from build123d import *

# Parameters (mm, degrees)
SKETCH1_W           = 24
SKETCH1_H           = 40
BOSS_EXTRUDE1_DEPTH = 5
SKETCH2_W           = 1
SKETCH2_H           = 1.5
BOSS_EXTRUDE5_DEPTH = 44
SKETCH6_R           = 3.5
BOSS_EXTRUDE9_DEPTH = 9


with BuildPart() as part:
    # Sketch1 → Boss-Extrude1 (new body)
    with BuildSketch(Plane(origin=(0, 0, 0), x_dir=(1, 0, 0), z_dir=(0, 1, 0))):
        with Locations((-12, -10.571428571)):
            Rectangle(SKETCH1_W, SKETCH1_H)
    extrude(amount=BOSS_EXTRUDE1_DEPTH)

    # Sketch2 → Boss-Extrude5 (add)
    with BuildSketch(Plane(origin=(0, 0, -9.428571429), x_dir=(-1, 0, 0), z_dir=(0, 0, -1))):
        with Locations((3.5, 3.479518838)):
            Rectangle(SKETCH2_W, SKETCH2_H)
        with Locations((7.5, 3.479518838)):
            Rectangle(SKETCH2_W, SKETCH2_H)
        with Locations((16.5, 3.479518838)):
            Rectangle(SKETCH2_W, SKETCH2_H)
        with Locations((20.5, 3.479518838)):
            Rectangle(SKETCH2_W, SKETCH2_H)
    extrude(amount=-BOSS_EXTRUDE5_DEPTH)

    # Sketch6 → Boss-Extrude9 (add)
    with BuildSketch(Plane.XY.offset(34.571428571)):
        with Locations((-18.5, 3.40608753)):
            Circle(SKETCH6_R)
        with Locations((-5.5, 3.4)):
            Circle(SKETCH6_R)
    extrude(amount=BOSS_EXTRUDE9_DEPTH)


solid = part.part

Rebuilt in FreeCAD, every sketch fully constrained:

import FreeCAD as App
import Part
import Sketcher
Q = App.Units.Quantity

doc = App.newDocument("Part")
params = doc.addObject("Spreadsheet::Sheet", "Params")
for row, (alias, value) in enumerate([
    ("sketch1_width", "24 mm"),
    ("sketch1_height", "40 mm"),
    ("pad1_length", "5 mm"),
    ("sketch2_width", "1 mm"),
    ("sketch2_height", "1.5 mm"),
    ("pad2_length", "44 mm"),
    ("sketch3_diameter", "7 mm"),
    ("pad3_length", "9 mm"),
], start=1):
    params.set(f"A{row}", alias)
    params.set(f"B{row}", "=" + value)
    params.setAlias(f"B{row}", alias)

body = doc.addObject("PartDesign::Body", "Body")

sketch1 = body.newObject("Sketcher::SketchObject", "Sketch")
sketch1.AttachmentSupport = (doc.getObject("XZ_Plane"), [""])
sketch1.MapMode = "FlatFace"
sketch1.addGeometry(Part.LineSegment(App.Vector(-24, -9.428571, 0), App.Vector(-24, 30.571429, 0)), False)
sketch1.addGeometry(Part.LineSegment(App.Vector(-24, 30.571429, 0), App.Vector(0, 30.571429, 0)), False)
sketch1.addGeometry(Part.LineSegment(App.Vector(0, 30.571429, 0), App.Vector(0, -9.428571, 0)), False)
sketch1.addGeometry(Part.LineSegment(App.Vector(0, -9.428571, 0), App.Vector(-24, -9.428571, 0)), False)
sketch1.addConstraint(Sketcher.Constraint("Coincident", 0, 2, 1, 1))
sketch1.addConstraint(Sketcher.Constraint("Coincident", 1, 2, 2, 1))
sketch1.addConstraint(Sketcher.Constraint("Coincident", 2, 2, 3, 1))
sketch1.addConstraint(Sketcher.Constraint("Coincident", 3, 2, 0, 1))
sketch1.addConstraint(Sketcher.Constraint("Vertical", 0))
sketch1.addConstraint(Sketcher.Constraint("Horizontal", 1))
sketch1.addConstraint(Sketcher.Constraint("Vertical", 2))
sketch1.addConstraint(Sketcher.Constraint("Horizontal", 3))
sketch1.addConstraint(Sketcher.Constraint("PointOnObject", 1, 2, -2))
sketch1.addConstraint(Sketcher.Constraint("DistanceX", 1, 1, 1, 2, Q("24 mm")))
sketch1.addConstraint(Sketcher.Constraint("DistanceY", 0, 1, 0, 2, Q("40 mm")))
sketch1.addConstraint(Sketcher.Constraint("DistanceY", -1, 1, 0, 2, Q("30.571429 mm")))
sketch1.setExpression("Constraints[9]", "Params.sketch1_width")
sketch1.setExpression("Constraints[10]", "Params.sketch1_height")
pad1 = body.newObject("PartDesign::Pad", "Pad")
pad1.Profile = sketch1
pad1.setExpression("Length", "Params.pad1_length")
pad1.Reversed = True

sketch2 = body.newObject("Sketcher::SketchObject", "Sketch001")
sketch2.AttachmentSupport = (doc.getObject("XY_Plane"), [""])
sketch2.MapMode = "FlatFace"
sketch2.AttachmentOffset = App.Placement(App.Vector(0, 0, -9.428571), App.Rotation())
sketch2.addGeometry(Part.LineSegment(App.Vector(-3, 4.229519, 0), App.Vector(-3, 2.729519, 0)), False)
sketch2.addGeometry(Part.LineSegment(App.Vector(-3, 2.729519, 0), App.Vector(-4, 2.729519, 0)), False)
sketch2.addGeometry(Part.LineSegment(App.Vector(-4, 2.729519, 0), App.Vector(-4, 4.229519, 0)), False)
sketch2.addGeometry(Part.LineSegment(App.Vector(-4, 4.229519, 0), App.Vector(-3, 4.229519, 0)), False)
sketch2.addGeometry(Part.LineSegment(App.Vector(-7, 4.229519, 0), App.Vector(-7, 2.729519, 0)), False)
sketch2.addGeometry(Part.LineSegment(App.Vector(-7, 2.729519, 0), App.Vector(-8, 2.729519, 0)), False)
sketch2.addGeometry(Part.LineSegment(App.Vector(-8, 2.729519, 0), App.Vector(-8, 4.229519, 0)), False)
sketch2.addGeometry(Part.LineSegment(App.Vector(-8, 4.229519, 0), App.Vector(-7, 4.229519, 0)), False)
sketch2.addGeometry(Part.LineSegment(App.Vector(-16, 4.229519, 0), App.Vector(-16, 2.729519, 0)), False)
sketch2.addGeometry(Part.LineSegment(App.Vector(-16, 2.729519, 0), App.Vector(-17, 2.729519, 0)), False)
sketch2.addGeometry(Part.LineSegment(App.Vector(-17, 2.729519, 0), App.Vector(-17, 4.229519, 0)), False)
sketch2.addGeometry(Part.LineSegment(App.Vector(-17, 4.229519, 0), App.Vector(-16, 4.229519, 0)), False)
sketch2.addGeometry(Part.LineSegment(App.Vector(-20, 4.229519, 0), App.Vector(-20, 2.729519, 0)), False)
sketch2.addGeometry(Part.LineSegment(App.Vector(-20, 2.729519, 0), App.Vector(-21, 2.729519, 0)), False)
sketch2.addGeometry(Part.LineSegment(App.Vector(-21, 2.729519, 0), App.Vector(-21, 4.229519, 0)), False)
sketch2.addGeometry(Part.LineSegment(App.Vector(-21, 4.229519, 0), App.Vector(-20, 4.229519, 0)), False)
sketch2.addConstraint(Sketcher.Constraint("Coincident", 0, 2, 1, 1))
sketch2.addConstraint(Sketcher.Constraint("Coincident", 1, 2, 2, 1))
sketch2.addConstraint(Sketcher.Constraint("Coincident", 2, 2, 3, 1))
sketch2.addConstraint(Sketcher.Constraint("Coincident", 3, 2, 0, 1))
sketch2.addConstraint(Sketcher.Constraint("Coincident", 4, 2, 5, 1))
sketch2.addConstraint(Sketcher.Constraint("Coincident", 5, 2, 6, 1))
sketch2.addConstraint(Sketcher.Constraint("Coincident", 6, 2, 7, 1))
sketch2.addConstraint(Sketcher.Constraint("Coincident", 7, 2, 4, 1))
sketch2.addConstraint(Sketcher.Constraint("Coincident", 8, 2, 9, 1))
sketch2.addConstraint(Sketcher.Constraint("Coincident", 9, 2, 10, 1))
sketch2.addConstraint(Sketcher.Constraint("Coincident", 10, 2, 11, 1))
sketch2.addConstraint(Sketcher.Constraint("Coincident", 11, 2, 8, 1))
sketch2.addConstraint(Sketcher.Constraint("Coincident", 12, 2, 13, 1))
sketch2.addConstraint(Sketcher.Constraint("Coincident", 13, 2, 14, 1))
sketch2.addConstraint(Sketcher.Constraint("Coincident", 14, 2, 15, 1))
sketch2.addConstraint(Sketcher.Constraint("Coincident", 15, 2, 12, 1))
sketch2.addConstraint(Sketcher.Constraint("Vertical", 0))
sketch2.addConstraint(Sketcher.Constraint("Horizontal", 1))
sketch2.addConstraint(Sketcher.Constraint("Vertical", 2))
sketch2.addConstraint(Sketcher.Constraint("Horizontal", 3))
sketch2.addConstraint(Sketcher.Constraint("Vertical", 4))
sketch2.addConstraint(Sketcher.Constraint("Horizontal", 5))
sketch2.addConstraint(Sketcher.Constraint("Vertical", 6))
sketch2.addConstraint(Sketcher.Constraint("Horizontal", 7))
sketch2.addConstraint(Sketcher.Constraint("Vertical", 8))
sketch2.addConstraint(Sketcher.Constraint("Horizontal", 9))
sketch2.addConstraint(Sketcher.Constraint("Vertical", 10))
sketch2.addConstraint(Sketcher.Constraint("Horizontal", 11))
sketch2.addConstraint(Sketcher.Constraint("Vertical", 12))
sketch2.addConstraint(Sketcher.Constraint("Horizontal", 13))
sketch2.addConstraint(Sketcher.Constraint("Vertical", 14))
sketch2.addConstraint(Sketcher.Constraint("Horizontal", 15))
sketch2.addConstraint(Sketcher.Constraint("Horizontal", 1, 2, 4, 2))
sketch2.addConstraint(Sketcher.Constraint("Horizontal", 3, 2, 6, 2))
sketch2.addConstraint(Sketcher.Constraint("Horizontal", 5, 2, 8, 2))
sketch2.addConstraint(Sketcher.Constraint("Horizontal", 7, 2, 10, 2))
sketch2.addConstraint(Sketcher.Constraint("Horizontal", 9, 2, 12, 2))
sketch2.addConstraint(Sketcher.Constraint("Horizontal", 11, 2, 14, 2))
sketch2.addConstraint(Sketcher.Constraint("Equal", 3, 5))
sketch2.addConstraint(Sketcher.Constraint("Equal", 7, 9))
sketch2.addConstraint(Sketcher.Constraint("Equal", 11, 13))
sketch2.addConstraint(Sketcher.Constraint("DistanceX", 1, 2, 1, 1, Q("1 mm")))
sketch2.addConstraint(Sketcher.Constraint("DistanceY", 0, 2, 0, 1, Q("1.5 mm")))
sketch2.addConstraint(Sketcher.Constraint("DistanceX", 0, 2, -1, 1, Q("3 mm")))
sketch2.addConstraint(Sketcher.Constraint("DistanceX", 4, 2, -1, 1, Q("7 mm")))
sketch2.addConstraint(Sketcher.Constraint("DistanceX", 8, 2, -1, 1, Q("16 mm")))
sketch2.addConstraint(Sketcher.Constraint("DistanceX", 12, 2, -1, 1, Q("20 mm")))
sketch2.addConstraint(Sketcher.Constraint("DistanceY", -1, 1, 0, 2, Q("2.729519 mm")))
sketch2.setExpression("Constraints[41]", "Params.sketch2_width")
sketch2.setExpression("Constraints[42]", "Params.sketch2_height")
pad2 = body.newObject("PartDesign::Pad", "Pad001")
pad2.Profile = sketch2
pad2.setExpression("Length", "Params.pad2_length")

sketch3 = body.newObject("Sketcher::SketchObject", "Sketch002")
sketch3.AttachmentSupport = (doc.getObject("XY_Plane"), [""])
sketch3.MapMode = "FlatFace"
sketch3.AttachmentOffset = App.Placement(App.Vector(0, 0, 34.571429), App.Rotation())
sketch3.addGeometry(Part.Circle(App.Vector(-18.5, 3.406088, 0), App.Vector(0, 0, 1), 3.5), False)
sketch3.addGeometry(Part.Circle(App.Vector(-5.5, 3.4, 0), App.Vector(0, 0, 1), 3.5), False)
sketch3.addConstraint(Sketcher.Constraint("Equal", 0, 1))
sketch3.addConstraint(Sketcher.Constraint("Diameter", 0, Q("7 mm")))
sketch3.addConstraint(Sketcher.Constraint("DistanceX", 0, 3, 1, 3, Q("13 mm")))
sketch3.addConstraint(Sketcher.Constraint("DistanceX", 0, 3, -1, 1, Q("18.5 mm")))
sketch3.addConstraint(Sketcher.Constraint("DistanceY", -1, 1, 1, 3, Q("3.4 mm")))
sketch3.addConstraint(Sketcher.Constraint("DistanceY", -1, 1, 0, 3, Q("3.406088 mm")))
sketch3.setExpression("Constraints[1]", "Params.sketch3_diameter")
pad3 = body.newObject("PartDesign::Pad", "Pad002")
pad3.Profile = sketch3
pad3.setExpression("Length", "Params.pad3_length")

doc.recompute()
